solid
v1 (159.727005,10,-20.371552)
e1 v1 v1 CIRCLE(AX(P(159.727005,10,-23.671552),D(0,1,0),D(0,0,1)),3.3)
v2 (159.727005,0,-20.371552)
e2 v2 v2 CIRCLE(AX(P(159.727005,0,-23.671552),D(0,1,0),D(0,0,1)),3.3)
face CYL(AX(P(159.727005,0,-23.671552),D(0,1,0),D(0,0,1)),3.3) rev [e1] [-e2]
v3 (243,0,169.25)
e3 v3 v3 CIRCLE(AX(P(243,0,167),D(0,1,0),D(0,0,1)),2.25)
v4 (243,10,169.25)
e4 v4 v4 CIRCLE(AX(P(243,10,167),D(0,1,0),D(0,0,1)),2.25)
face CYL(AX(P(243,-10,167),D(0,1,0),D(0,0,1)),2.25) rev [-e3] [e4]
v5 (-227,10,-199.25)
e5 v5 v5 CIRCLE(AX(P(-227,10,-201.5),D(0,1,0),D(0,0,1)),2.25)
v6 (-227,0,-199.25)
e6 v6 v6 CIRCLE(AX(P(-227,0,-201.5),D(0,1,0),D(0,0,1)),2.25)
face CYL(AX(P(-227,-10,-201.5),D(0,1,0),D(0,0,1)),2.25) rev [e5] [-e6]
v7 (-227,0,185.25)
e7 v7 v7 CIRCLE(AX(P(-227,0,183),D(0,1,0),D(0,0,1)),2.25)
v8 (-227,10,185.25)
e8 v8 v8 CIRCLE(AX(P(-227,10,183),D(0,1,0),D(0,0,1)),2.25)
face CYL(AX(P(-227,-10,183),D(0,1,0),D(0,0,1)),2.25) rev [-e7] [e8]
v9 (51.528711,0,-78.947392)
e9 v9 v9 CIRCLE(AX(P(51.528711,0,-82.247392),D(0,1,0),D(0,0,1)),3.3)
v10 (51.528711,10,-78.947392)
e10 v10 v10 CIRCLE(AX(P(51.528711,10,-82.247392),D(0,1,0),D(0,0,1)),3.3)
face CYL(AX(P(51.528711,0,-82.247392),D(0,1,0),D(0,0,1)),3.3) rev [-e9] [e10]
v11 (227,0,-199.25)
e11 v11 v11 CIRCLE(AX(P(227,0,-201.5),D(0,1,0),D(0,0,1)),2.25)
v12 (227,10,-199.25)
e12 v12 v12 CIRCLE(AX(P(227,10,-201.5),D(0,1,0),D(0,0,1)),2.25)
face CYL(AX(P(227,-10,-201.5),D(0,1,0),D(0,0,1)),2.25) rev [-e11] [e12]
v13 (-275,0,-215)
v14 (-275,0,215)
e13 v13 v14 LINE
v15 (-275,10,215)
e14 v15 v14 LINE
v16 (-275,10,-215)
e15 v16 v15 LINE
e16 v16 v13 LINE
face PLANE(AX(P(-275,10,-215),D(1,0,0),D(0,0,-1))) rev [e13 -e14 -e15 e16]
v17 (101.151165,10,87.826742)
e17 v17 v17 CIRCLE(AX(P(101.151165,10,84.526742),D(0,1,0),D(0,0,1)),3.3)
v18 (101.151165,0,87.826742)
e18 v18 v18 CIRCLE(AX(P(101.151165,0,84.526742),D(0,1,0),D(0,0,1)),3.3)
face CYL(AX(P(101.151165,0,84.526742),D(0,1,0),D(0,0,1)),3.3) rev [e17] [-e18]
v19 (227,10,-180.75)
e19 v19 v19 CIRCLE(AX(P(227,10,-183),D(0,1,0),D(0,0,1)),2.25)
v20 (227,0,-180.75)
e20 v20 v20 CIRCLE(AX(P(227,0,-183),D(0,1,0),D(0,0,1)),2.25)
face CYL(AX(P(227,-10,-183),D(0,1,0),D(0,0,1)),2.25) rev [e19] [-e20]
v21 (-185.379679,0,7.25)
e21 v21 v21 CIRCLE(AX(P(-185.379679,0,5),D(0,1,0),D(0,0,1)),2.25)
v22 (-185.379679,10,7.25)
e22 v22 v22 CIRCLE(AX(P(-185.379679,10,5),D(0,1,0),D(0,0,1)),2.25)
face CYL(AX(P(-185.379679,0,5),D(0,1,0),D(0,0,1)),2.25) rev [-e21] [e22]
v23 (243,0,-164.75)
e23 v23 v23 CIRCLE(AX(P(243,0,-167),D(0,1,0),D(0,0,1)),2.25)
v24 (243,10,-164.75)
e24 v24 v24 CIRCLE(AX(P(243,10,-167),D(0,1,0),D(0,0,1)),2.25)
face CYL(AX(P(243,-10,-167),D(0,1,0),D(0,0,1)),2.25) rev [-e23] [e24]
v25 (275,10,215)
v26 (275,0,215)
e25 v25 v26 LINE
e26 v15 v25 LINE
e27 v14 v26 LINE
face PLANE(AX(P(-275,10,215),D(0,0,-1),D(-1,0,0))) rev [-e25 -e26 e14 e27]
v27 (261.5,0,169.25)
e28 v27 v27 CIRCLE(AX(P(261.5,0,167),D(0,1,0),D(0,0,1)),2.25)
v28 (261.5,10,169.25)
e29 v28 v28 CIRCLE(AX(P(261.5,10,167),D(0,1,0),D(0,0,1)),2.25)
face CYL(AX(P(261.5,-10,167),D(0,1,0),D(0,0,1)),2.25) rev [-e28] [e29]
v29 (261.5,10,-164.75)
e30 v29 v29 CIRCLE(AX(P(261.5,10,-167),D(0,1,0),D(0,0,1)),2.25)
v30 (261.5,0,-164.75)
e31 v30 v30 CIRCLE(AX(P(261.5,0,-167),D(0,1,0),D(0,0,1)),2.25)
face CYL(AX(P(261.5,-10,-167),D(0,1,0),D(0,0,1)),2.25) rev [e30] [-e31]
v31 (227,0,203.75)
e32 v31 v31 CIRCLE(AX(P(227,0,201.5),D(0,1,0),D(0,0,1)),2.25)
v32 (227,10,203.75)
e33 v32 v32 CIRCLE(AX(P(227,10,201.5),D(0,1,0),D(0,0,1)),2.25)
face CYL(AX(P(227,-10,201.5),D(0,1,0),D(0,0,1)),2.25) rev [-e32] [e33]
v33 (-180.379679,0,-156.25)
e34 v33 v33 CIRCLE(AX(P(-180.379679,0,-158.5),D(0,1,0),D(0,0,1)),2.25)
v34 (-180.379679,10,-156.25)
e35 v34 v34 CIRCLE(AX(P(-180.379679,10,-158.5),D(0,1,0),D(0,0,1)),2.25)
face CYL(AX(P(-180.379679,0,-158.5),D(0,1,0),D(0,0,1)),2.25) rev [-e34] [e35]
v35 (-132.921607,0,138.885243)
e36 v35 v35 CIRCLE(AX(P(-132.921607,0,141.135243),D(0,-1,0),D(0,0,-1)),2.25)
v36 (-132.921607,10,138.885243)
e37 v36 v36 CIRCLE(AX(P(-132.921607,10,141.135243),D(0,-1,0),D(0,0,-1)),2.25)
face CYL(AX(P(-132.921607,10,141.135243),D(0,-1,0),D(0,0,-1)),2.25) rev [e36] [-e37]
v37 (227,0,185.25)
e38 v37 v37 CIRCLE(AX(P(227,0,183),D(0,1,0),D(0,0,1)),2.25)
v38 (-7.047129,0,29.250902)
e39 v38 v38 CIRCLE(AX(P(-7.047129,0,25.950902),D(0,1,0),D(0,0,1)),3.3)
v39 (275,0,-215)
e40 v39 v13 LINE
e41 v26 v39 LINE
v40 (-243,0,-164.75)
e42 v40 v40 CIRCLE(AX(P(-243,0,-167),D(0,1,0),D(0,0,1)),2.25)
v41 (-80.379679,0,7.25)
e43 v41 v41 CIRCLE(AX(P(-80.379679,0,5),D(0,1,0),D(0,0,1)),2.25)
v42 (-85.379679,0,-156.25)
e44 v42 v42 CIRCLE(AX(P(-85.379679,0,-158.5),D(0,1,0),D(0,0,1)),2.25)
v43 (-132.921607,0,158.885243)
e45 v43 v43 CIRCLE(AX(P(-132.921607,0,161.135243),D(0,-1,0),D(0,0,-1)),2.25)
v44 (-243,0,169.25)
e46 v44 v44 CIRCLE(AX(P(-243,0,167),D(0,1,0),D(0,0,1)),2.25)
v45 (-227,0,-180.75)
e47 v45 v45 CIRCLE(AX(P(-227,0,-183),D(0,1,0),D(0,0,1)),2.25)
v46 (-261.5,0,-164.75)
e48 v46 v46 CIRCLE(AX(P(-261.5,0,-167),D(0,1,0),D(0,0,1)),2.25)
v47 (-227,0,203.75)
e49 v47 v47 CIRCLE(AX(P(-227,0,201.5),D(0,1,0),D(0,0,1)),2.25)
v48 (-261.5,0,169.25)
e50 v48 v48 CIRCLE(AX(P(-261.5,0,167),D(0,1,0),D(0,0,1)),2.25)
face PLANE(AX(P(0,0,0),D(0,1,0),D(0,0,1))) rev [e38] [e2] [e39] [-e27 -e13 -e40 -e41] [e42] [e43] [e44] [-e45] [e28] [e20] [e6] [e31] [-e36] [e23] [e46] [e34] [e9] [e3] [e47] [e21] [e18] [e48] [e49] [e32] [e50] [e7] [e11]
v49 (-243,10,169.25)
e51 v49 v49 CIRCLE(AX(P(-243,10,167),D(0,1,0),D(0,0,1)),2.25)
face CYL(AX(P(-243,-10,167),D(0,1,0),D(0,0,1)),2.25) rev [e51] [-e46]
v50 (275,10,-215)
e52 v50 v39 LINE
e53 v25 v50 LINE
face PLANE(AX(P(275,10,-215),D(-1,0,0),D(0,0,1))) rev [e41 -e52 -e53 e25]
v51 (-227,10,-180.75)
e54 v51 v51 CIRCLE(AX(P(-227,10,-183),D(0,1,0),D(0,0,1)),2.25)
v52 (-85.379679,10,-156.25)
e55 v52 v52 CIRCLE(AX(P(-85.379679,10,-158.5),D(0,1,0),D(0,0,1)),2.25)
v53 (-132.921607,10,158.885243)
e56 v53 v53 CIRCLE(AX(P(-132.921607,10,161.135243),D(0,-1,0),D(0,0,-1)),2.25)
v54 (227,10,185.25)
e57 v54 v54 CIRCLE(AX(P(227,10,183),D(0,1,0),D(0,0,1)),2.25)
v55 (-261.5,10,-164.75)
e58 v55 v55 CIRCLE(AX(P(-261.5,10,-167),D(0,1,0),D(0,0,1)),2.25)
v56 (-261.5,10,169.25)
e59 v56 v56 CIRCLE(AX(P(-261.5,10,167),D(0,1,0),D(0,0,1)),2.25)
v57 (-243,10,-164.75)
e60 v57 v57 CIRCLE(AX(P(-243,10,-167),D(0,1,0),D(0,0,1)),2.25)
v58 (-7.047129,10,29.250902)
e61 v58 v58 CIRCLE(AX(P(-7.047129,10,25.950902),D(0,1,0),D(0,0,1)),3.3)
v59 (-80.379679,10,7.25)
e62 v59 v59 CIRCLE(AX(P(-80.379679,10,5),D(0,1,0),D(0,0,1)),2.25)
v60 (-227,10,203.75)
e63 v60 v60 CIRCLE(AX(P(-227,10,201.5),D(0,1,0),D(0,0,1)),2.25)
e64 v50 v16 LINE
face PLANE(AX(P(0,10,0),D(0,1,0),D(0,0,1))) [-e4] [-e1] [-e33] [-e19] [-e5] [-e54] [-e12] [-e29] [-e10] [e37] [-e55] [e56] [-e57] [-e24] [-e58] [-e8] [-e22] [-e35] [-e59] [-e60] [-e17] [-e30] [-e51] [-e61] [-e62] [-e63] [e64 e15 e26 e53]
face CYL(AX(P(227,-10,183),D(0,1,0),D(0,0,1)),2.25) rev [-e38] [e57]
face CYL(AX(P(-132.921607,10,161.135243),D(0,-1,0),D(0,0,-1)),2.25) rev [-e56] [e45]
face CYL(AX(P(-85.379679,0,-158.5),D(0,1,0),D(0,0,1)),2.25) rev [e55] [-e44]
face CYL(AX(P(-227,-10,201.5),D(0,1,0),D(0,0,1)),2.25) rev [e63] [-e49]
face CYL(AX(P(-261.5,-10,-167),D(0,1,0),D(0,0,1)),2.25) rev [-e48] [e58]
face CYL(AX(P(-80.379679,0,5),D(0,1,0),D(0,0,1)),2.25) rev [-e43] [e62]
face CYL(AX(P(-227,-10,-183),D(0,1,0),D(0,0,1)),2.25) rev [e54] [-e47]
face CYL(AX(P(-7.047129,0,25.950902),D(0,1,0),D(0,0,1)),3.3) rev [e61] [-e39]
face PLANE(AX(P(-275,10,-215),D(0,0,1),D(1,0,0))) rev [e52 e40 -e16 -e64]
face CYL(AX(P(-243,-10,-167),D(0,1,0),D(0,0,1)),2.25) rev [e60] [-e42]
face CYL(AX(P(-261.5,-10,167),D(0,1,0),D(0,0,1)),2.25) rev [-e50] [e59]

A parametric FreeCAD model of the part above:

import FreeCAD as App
import Part
import Sketcher
Q = App.Units.Quantity

doc = App.newDocument("Part")
body = doc.addObject("PartDesign::Body", "Body")

# Sketch on XZ plane
sketch1 = body.newObject("Sketcher::SketchObject", "Sketch")
sketch1.AttachmentSupport = (doc.getObject("XZ_Plane"), [""])
sketch1.MapMode = "FlatFace"
sketch1.addGeometry([
    Part.LineSegment(App.Vector(-275, -215, 0), App.Vector(-275, 215, 0)),
    Part.LineSegment(App.Vector(-275, 215, 0), App.Vector(275, 215, 0)),
    Part.LineSegment(App.Vector(275, 215, 0), App.Vector(275, -215, 0)),
    Part.LineSegment(App.Vector(275, -215, 0), App.Vector(-275, -215, 0)),
], False)
sketch1.addConstraint([
    Sketcher.Constraint("Coincident", 0, 2, 1, 1),
    Sketcher.Constraint("Coincident", 1, 2, 2, 1),
    Sketcher.Constraint("Coincident", 2, 2, 3, 1),
    Sketcher.Constraint("Coincident", 3, 2, 0, 1),
    Sketcher.Constraint("Vertical", 0),
    Sketcher.Constraint("Horizontal", 1),
    Sketcher.Constraint("Vertical", 2),
    Sketcher.Constraint("Horizontal", 3),
    Sketcher.Constraint("Symmetric", 0, 2, 2, 2, -1, 1),
    Sketcher.Constraint("DistanceX", 1, 1, 1, 2, Q("550 mm")),
    Sketcher.Constraint("DistanceY", 0, 1, 0, 2, Q("430 mm")),
])
pad1 = body.newObject("PartDesign::Pad", "Pad")
pad1.Profile = sketch1
pad1.Length = 10
pad1.Reversed = True

# Sketch on XZ plane
sketch2 = body.newObject("Sketcher::SketchObject", "Sketch001")
sketch2.AttachmentSupport = (doc.getObject("XZ_Plane"), [""])
sketch2.MapMode = "FlatFace"
sketch2.AttachmentOffset = App.Placement(App.Vector(0, 0, -10), App.Rotation())
sketch2.addGeometry([
    Part.Circle(App.Vector(-227, -201.5, 0), App.Vector(0, 0, 1), 2.2),  # 0
    Part.Circle(App.Vector(-227, -183, 0), App.Vector(0, 0, 1), 2.2),  # 1
    Part.Circle(App.Vector(-243, -167, 0), App.Vector(0, 0, 1), 2.2),  # 2
    Part.Circle(App.Vector(-261.5, -167, 0), App.Vector(0, 0, 1), 2.2),  # 3
    Part.Circle(App.Vector(227, -201.5, 0), App.Vector(0, 0, 1), 2.2),  # 4
    Part.Circle(App.Vector(227, -183, 0), App.Vector(0, 0, 1), 2.2),  # 5
    Part.Circle(App.Vector(243, -167, 0), App.Vector(0, 0, 1), 2.2),  # 6
    Part.Circle(App.Vector(261.5, -167, 0), App.Vector(0, 0, 1), 2.2),  # 7
    Part.Circle(App.Vector(261.5, 167, 0), App.Vector(0, 0, 1), 2.2),  # 8
    Part.Circle(App.Vector(243, 167, 0), App.Vector(0, 0, 1), 2.2),  # 9
    Part.Circle(App.Vector(227, 183, 0), App.Vector(0, 0, 1), 2.2),  # 10
    Part.Circle(App.Vector(227, 201.5, 0), App.Vector(0, 0, 1), 2.2),  # 11
    Part.Circle(App.Vector(-227, 201.5, 0), App.Vector(0, 0, 1), 2.2),  # 12
    Part.Circle(App.Vector(-227, 183, 0), App.Vector(0, 0, 1), 2.2),  # 13
    Part.Circle(App.Vector(-243, 167, 0), App.Vector(0, 0, 1), 2.2),  # 14
    Part.Circle(App.Vector(-261.5, 167, 0), App.Vector(0, 0, 1), 2.2),  # 15
], False)
sketch2.addConstraint([
    Sketcher.Constraint("Equal", 0, 1),
    Sketcher.Constraint("Equal", 1, 2),
    Sketcher.Constraint("Equal", 2, 3),
    Sketcher.Constraint("Equal", 3, 4),
    Sketcher.Constraint("Equal", 4, 5),
    Sketcher.Constraint("Equal", 5, 6),
    Sketcher.Constraint("Equal", 6, 7),
    Sketcher.Constraint("Equal", 7, 8),
    Sketcher.Constraint("Equal", 8, 9),
    Sketcher.Constraint("Equal", 9, 10),
    Sketcher.Constraint("Equal", 10, 11),
    Sketcher.Constraint("Equal", 11, 12),
    Sketcher.Constraint("Equal", 12, 13),
    Sketcher.Constraint("Equal", 13, 14),
    Sketcher.Constraint("Equal", 14, 15),
    Sketcher.Constraint("Symmetric", 3, 3, 8, 3, -1, 1),
    Sketcher.Constraint("Symmetric", 2, 3, 9, 3, -1, 1),
    Sketcher.Constraint("Symmetric", 1, 3, 10, 3, -1, 1),
    Sketcher.Constraint("Symmetric", 0, 3, 11, 3, -1, 1),
    Sketcher.Constraint("Symmetric", 4, 3, 12, 3, -1, 1),
    Sketcher.Constraint("Symmetric", 5, 3, 13, 3, -1, 1),
    Sketcher.Constraint("Symmetric", 6, 3, 14, 3, -1, 1),
    Sketcher.Constraint("Symmetric", 7, 3, 15, 3, -1, 1),
    Sketcher.Constraint("Symmetric", 0, 3, 4, 3, -2),
    Sketcher.Constraint("Symmetric", 1, 3, 5, 3, -2),
    Sketcher.Constraint("Symmetric", 2, 3, 6, 3, -2),
    Sketcher.Constraint("Symmetric", 3, 3, 7, 3, -2),
    Sketcher.Constraint("Horizontal", 2, 3, 3, 3),
    Sketcher.Constraint("Vertical", 0, 3, 1, 3),
    Sketcher.Constraint("Diameter", 0, Q("4.5 mm")),
    Sketcher.Constraint("DistanceX", 0, 3, -1, 1, Q("227 mm")),
    Sketcher.Constraint("DistanceY", 1, 3, -1, 1, Q("183 mm")),
    Sketcher.Constraint("DistanceX", 2, 3, -1, 1, Q("243 mm")),
    Sketcher.Constraint("DistanceY", 2, 3, -1, 1, Q("167 mm")),
    Sketcher.Constraint("DistanceY", 0, 3, 12, 3, Q("403 mm")),
    Sketcher.Constraint("DistanceX", 3, 3, -1, 1, Q("261.5 mm")),
])
pocket1 = body.newObject("PartDesign::Pocket", "Pocket")
pocket1.Profile = sketch2
pocket1.Length = 20
pocket1.Reversed = True

# Sketch on XZ plane
sketch3 = body.newObject("Sketcher::SketchObject", "Sketch002")
sketch3.AttachmentSupport = (doc.getObject("XZ_Plane"), [""])
sketch3.MapMode = "FlatFace"
sketch3.AttachmentOffset = App.Placement(App.Vector(0, 0, -10), App.Rotation())
sketch3.addGeometry([
    Part.Circle(App.Vector(101.2, 84.5, 0), App.Vector(0, 0, 1), 3.3),
    Part.Circle(App.Vector(159.7, -23.7, 0), App.Vector(0, 0, 1), 3.3),
    Part.Circle(App.Vector(51.5, -82.2, 0), App.Vector(0, 0, 1), 3.3),
    Part.Circle(App.Vector(-7, 26, 0), App.Vector(0, 0, 1), 3.3),
], False)
sketch3.addConstraint([
    Sketcher.Constraint("Equal", 0, 1),
    Sketcher.Constraint("Equal", 1, 2),
    Sketcher.Constraint("Equal", 2, 3),
    Sketcher.Constraint("Diameter", 0, Q("6.6 mm")),
    Sketcher.Constraint("DistanceX", -1, 1, 2, 3, Q("51.528711 mm")),
    Sketcher.Constraint("DistanceX", 3, 3, -1, 1, Q("7.047129 mm")),
    Sketcher.Constraint("DistanceX", 0, 3, 1, 3, Q("58.57584 mm")),
    Sketcher.Constraint("DistanceY", 2, 3, 1, 3, Q("58.57584 mm")),
    Sketcher.Constraint("DistanceY", 3, 3, 0, 3, Q("58.57584 mm")),
    Sketcher.Constraint("DistanceX", -1, 1, 0, 3, Q("101.151165 mm")),
    Sketcher.Constraint("DistanceY", -1, 1, 0, 3, Q("84.526742 mm")),
    Sketcher.Constraint("DistanceY", 1, 3, -1, 1, Q("23.671552 mm")),
])
pocket2 = body.newObject("PartDesign::Pocket", "Pocket001")
pocket2.Profile = sketch3
pocket2.Length = 10
pocket2.Reversed = True

# Sketch on XZ plane
sketch4 = body.newObject("Sketcher::SketchObject", "Sketch003")
sketch4.AttachmentSupport = (doc.getObject("XZ_Plane"), [""])
sketch4.MapMode = "FlatFace"
sketch4.addGeometry([
    Part.Circle(App.Vector(-132.9, 161.1, 0), App.Vector(0, 0, 1), 2.2),
    Part.Circle(App.Vector(-132.9, 141.1, 0), App.Vector(0, 0, 1), 2.2),
], False)
sketch4.addConstraint([
    Sketcher.Constraint("Equal", 0, 1),
    Sketcher.Constraint("Vertical", 0, 3, 1, 3),
    Sketcher.Constraint("Diameter", 0, Q("4.5 mm")),
    Sketcher.Constraint("DistanceY", 1, 3, 0, 3, Q("20 mm")),
    Sketcher.Constraint("DistanceX", 0, 3, -1, 1, Q("132.921607 mm")),
    Sketcher.Constraint("DistanceY", -1, 1, 0, 3, Q("161.135243 mm")),
])
pocket3 = body.newObject("PartDesign::Pocket", "Pocket002")
pocket3.Profile = sketch4
pocket3.Length = 10

# Sketch on XZ plane
sketch5 = body.newObject("Sketcher::SketchObject", "Sketch004")
sketch5.AttachmentSupport = (doc.getObject("XZ_Plane"), [""])
sketch5.MapMode = "FlatFace"
sketch5.AttachmentOffset = App.Placement(App.Vector(0, 0, -10), App.Rotation())
sketch5.addGeometry([
    Part.Circle(App.Vector(-180.4, -158.5, 0), App.Vector(0, 0, 1), 2.2),
    Part.Circle(App.Vector(-85.4, -158.5, 0), App.Vector(0, 0, 1), 2.2),
    Part.Circle(App.Vector(-80.4, 5, 0), App.Vector(0, 0, 1), 2.2),
    Part.Circle(App.Vector(-185.4, 5, 0), App.Vector(0, 0, 1), 2.2),
], False)
sketch5.addConstraint([
    Sketcher.Constraint("Equal", 0, 1),
    Sketcher.Constraint("Equal", 1, 2),
    Sketcher.Constraint("Equal", 2, 3),
    Sketcher.Constraint("Horizontal", 0, 3, 1, 3),
    Sketcher.Constraint("Horizontal", 2, 3, 3, 3),
    Sketcher.Constraint("Diameter", 0, Q("4.5 mm")),
    Sketcher.Constraint("DistanceY", -1, 1, 2, 3, Q("5 mm")),
    Sketcher.Constraint("DistanceX", 0, 3, 1, 3, Q("95 mm")),
    Sketcher.Constraint("DistanceX", 1, 3, 2, 3, Q("5 mm")),
    Sketcher.Constraint("DistanceX", 3, 3, 2, 3, Q("105 mm")),
    Sketcher.Constraint("DistanceY", 0, 3, -1, 1, Q("158.5 mm")),
    Sketcher.Constraint("DistanceX", 0, 3, -1, 1, Q("180.379679 mm")),
])
pocket4 = body.newObject("PartDesign::Pocket", "Pocket003")
pocket4.Profile = sketch5
pocket4.Length = 10
pocket4.Reversed = True

doc.recompute()
